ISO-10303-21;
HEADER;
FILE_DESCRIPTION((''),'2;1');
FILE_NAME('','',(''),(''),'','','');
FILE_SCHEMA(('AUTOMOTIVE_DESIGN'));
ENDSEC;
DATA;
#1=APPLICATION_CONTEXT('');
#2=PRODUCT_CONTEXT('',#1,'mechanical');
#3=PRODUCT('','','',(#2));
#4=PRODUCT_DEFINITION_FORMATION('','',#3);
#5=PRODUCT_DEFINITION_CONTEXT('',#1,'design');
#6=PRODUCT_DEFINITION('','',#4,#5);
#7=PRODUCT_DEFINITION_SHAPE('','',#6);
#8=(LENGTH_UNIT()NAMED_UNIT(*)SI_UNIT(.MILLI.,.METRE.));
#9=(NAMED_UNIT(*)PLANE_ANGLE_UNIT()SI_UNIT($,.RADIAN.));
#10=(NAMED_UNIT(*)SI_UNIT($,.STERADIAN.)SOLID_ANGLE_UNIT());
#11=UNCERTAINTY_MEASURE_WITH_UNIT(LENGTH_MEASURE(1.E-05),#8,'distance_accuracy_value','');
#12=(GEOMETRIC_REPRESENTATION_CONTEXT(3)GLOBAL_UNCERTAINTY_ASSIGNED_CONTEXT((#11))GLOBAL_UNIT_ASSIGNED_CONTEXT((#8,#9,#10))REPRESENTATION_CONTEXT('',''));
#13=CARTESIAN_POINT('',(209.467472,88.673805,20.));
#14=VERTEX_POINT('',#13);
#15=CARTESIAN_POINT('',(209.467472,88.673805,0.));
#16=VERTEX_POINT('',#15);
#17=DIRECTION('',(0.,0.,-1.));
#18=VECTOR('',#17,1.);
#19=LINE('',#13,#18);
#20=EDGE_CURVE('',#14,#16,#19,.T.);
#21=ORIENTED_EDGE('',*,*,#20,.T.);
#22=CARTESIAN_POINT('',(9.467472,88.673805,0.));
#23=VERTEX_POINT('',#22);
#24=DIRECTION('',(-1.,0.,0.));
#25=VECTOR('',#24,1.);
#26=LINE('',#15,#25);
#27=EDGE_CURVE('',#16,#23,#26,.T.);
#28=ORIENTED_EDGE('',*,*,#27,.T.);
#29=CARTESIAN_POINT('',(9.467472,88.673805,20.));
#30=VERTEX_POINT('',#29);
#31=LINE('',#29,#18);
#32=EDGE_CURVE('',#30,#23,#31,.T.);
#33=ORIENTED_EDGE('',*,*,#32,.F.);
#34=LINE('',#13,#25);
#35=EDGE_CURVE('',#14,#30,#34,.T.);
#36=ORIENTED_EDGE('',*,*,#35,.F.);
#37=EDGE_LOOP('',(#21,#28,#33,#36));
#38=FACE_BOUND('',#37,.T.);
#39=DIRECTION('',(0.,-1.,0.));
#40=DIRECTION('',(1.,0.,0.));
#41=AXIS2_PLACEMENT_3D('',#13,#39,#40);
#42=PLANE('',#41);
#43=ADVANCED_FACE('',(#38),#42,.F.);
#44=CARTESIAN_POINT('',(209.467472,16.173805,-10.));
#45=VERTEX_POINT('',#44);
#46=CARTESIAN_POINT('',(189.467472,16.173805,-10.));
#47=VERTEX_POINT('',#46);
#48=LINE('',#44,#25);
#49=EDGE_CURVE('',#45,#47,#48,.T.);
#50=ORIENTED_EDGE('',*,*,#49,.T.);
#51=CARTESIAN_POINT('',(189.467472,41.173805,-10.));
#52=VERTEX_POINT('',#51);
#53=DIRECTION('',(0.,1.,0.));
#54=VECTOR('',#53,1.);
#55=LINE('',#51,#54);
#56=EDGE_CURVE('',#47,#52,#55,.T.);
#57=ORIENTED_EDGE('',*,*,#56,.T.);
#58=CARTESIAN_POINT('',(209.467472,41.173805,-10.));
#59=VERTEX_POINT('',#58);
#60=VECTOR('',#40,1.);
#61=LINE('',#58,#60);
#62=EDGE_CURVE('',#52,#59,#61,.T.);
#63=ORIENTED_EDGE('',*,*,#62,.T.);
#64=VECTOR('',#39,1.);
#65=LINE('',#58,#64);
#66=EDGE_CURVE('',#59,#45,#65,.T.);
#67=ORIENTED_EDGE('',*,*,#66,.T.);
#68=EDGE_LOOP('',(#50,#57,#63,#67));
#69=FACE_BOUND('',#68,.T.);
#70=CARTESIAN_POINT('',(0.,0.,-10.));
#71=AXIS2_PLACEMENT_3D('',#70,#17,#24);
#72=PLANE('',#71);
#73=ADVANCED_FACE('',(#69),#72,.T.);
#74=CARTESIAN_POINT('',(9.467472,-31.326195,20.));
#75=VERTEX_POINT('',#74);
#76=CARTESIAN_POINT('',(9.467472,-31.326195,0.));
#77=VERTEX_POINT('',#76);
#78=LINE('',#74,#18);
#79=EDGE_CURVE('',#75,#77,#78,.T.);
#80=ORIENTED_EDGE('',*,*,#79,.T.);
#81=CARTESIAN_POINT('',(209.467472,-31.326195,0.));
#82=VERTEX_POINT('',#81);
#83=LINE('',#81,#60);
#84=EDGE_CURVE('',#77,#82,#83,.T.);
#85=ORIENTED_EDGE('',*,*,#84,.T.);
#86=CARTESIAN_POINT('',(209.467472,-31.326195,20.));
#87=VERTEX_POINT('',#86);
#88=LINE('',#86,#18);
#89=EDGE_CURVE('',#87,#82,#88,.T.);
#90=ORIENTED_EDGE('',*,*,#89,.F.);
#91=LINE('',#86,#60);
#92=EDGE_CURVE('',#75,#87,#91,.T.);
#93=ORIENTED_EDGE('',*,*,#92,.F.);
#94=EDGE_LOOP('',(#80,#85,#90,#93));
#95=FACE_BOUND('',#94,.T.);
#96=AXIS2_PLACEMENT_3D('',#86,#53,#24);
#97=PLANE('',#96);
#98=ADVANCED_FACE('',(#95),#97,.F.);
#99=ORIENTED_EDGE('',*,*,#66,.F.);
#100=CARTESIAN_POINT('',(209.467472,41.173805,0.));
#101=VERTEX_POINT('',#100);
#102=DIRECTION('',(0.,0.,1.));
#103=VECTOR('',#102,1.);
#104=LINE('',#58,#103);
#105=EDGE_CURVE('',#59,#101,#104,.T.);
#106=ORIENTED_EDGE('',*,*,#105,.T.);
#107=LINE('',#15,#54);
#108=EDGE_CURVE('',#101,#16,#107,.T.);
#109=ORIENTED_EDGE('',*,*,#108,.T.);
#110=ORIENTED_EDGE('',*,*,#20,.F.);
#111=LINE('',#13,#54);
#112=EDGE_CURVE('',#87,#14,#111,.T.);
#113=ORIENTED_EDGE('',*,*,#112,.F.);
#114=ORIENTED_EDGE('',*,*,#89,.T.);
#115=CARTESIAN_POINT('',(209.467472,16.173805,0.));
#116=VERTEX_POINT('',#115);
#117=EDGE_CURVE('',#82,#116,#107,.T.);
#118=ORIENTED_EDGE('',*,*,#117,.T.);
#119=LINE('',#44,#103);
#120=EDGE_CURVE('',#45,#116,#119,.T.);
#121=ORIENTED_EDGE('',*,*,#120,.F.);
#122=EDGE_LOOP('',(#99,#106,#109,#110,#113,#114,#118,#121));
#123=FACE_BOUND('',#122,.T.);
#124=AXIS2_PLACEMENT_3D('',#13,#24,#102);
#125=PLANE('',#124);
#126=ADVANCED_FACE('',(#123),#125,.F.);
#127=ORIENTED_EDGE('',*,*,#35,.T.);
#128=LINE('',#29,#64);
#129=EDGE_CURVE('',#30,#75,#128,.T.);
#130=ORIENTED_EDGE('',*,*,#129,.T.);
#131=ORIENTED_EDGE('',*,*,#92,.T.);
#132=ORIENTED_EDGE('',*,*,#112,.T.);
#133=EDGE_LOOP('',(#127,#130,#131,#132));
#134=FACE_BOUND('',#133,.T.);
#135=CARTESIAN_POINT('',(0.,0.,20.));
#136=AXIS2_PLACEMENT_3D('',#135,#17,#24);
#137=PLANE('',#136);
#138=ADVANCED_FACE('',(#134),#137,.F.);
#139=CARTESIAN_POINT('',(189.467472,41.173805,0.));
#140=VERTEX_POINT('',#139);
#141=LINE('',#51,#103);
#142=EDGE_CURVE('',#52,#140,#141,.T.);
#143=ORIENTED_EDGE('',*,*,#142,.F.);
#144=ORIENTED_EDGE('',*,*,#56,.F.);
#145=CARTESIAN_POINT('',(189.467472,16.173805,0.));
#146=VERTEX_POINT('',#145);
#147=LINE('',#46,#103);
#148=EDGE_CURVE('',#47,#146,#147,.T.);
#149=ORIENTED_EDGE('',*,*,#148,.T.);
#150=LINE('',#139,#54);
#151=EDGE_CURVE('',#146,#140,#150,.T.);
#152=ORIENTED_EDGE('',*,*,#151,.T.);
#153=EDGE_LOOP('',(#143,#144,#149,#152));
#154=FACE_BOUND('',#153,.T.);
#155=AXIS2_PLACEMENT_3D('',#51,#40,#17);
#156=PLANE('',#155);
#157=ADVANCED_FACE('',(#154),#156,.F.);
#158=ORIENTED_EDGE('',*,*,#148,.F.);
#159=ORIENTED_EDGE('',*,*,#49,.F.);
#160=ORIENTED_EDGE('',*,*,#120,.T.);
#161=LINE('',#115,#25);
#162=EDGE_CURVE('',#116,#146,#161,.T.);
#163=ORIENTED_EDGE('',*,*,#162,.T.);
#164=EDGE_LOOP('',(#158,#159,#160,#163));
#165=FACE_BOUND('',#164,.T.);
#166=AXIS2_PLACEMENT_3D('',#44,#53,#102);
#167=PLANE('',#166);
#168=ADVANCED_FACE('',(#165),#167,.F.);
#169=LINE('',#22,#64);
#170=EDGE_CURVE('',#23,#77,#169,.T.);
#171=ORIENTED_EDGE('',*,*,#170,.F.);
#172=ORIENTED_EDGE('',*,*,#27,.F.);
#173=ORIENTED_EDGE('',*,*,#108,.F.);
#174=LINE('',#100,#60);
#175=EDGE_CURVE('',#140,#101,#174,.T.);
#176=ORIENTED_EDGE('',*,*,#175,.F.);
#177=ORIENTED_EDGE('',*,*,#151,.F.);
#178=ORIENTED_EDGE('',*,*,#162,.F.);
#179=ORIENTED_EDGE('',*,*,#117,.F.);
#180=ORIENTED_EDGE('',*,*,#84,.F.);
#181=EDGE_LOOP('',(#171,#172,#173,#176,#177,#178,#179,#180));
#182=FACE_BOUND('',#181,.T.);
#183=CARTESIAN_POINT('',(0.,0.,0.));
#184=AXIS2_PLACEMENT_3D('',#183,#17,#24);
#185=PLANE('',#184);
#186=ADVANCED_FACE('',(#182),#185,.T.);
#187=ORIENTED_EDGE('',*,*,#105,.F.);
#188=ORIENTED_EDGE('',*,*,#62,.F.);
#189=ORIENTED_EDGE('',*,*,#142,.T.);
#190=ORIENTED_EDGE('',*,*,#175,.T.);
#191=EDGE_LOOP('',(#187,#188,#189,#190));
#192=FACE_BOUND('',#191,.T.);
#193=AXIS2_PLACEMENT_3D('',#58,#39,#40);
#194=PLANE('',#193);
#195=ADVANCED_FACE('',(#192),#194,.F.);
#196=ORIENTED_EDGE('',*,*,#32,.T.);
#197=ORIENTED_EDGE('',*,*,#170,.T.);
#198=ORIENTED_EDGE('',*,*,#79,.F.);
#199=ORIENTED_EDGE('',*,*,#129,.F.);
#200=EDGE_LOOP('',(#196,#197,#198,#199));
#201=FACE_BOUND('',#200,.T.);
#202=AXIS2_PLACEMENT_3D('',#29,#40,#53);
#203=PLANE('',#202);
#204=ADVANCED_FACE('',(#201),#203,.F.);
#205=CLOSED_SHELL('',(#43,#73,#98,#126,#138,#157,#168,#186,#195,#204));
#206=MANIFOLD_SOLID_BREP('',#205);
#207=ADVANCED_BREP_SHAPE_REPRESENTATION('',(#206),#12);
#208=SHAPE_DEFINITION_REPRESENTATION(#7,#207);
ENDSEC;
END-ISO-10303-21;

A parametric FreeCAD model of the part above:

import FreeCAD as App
import Part
import Sketcher
Q = App.Units.Quantity


def add_polygon(sketch, points):
    """Adds a closed chain of lines whose ends are joined by coincident constraints."""
    first, n = sketch.GeometryCount, len(points)
    for a, b in zip(points, points[1:] + points[:1]):
        sketch.addGeometry(Part.LineSegment(App.Vector(*a, 0), App.Vector(*b, 0)), False)
    for i in range(n):
        sketch.addConstraint(Sketcher.Constraint("Coincident", first + i, 2, first + (i + 1) % n, 1))

doc = App.newDocument("Part")
params = doc.addObject("Spreadsheet::Sheet", "Params")
for row, (alias, value) in enumerate([
    ("sketch1_width", "200 mm"),
    ("sketch1_height", "120 mm"),
    ("pad1_length", "20 mm"),
    ("sketch2_width", "20 mm"),
    ("sketch2_height", "25 mm"),
    ("pad2_length", "10 mm"),
], start=1):
    params.set(f"A{row}", alias)
    params.set(f"B{row}", "=" + value)
    params.setAlias(f"B{row}", alias)

body = doc.addObject("PartDesign::Body", "Body")

# Sketch on XY plane
sketch1 = doc.addObject("Sketcher::SketchObject", "Sketch")
body.addObject(sketch1)
sketch1.AttachmentSupport = (doc.XY_Plane, [""])
sketch1.MapMode = "FlatFace"
add_polygon(sketch1, [(9.467472, 88.673805), (9.467472, -31.326195), (209.467472, -31.326195), (209.467472, 88.673805)])  # lines 0-3
sketch1.addConstraint([
    Sketcher.Constraint("Vertical", 0),
    Sketcher.Constraint("Horizontal", 1),
    Sketcher.Constraint("Vertical", 2),
    Sketcher.Constraint("Horizontal", 3),
    Sketcher.Constraint("DistanceX", 1, 1, 1, 2, Q("200 mm")),
    Sketcher.Constraint("DistanceY", 0, 2, 0, 1, Q("120 mm")),
    Sketcher.Constraint("DistanceX", -1, 1, 0, 2, Q("9.467472 mm")),
    Sketcher.Constraint("DistanceY", 0, 2, -1, 1, Q("31.326195 mm")),
])
sketch1.setExpression("Constraints[8]", "Params.sketch1_width")
sketch1.setExpression("Constraints[9]", "Params.sketch1_height")
pad1 = doc.addObject("PartDesign::Pad", "Pad")
body.addObject(pad1)
pad1.Profile = sketch1
pad1.setExpression("Length", "Params.pad1_length")

# Sketch on XY plane
sketch2 = doc.addObject("Sketcher::SketchObject", "Sketch001")
body.addObject(sketch2)
sketch2.AttachmentSupport = (doc.XY_Plane, [""])
sketch2.MapMode = "FlatFace"
add_polygon(sketch2, [(209.467472, 41.173805), (209.467472, 16.173805), (189.467472, 16.173805), (189.467472, 41.173805)])  # lines 0-3
sketch2.addConstraint([
    Sketcher.Constraint("Vertical", 0),
    Sketcher.Constraint("Horizontal", 1),
    Sketcher.Constraint("Vertical", 2),
    Sketcher.Constraint("Horizontal", 3),
    Sketcher.Constraint("DistanceX", 1, 2, 1, 1, Q("20 mm")),
    Sketcher.Constraint("DistanceY", 0, 2, 0, 1, Q("25 mm")),
    Sketcher.Constraint("DistanceX", -1, 1, 0, 2, Q("209.467472 mm")),
    Sketcher.Constraint("DistanceY", -1, 1, 0, 2, Q("16.173805 mm")),
])
sketch2.setExpression("Constraints[8]", "Params.sketch2_width")
sketch2.setExpression("Constraints[9]", "Params.sketch2_height")
pad2 = doc.addObject("PartDesign::Pad", "Pad001")
body.addObject(pad2)
pad2.Profile = sketch2
pad2.setExpression("Length", "Params.pad2_length")
pad2.Reversed = True

doc.recompute()
